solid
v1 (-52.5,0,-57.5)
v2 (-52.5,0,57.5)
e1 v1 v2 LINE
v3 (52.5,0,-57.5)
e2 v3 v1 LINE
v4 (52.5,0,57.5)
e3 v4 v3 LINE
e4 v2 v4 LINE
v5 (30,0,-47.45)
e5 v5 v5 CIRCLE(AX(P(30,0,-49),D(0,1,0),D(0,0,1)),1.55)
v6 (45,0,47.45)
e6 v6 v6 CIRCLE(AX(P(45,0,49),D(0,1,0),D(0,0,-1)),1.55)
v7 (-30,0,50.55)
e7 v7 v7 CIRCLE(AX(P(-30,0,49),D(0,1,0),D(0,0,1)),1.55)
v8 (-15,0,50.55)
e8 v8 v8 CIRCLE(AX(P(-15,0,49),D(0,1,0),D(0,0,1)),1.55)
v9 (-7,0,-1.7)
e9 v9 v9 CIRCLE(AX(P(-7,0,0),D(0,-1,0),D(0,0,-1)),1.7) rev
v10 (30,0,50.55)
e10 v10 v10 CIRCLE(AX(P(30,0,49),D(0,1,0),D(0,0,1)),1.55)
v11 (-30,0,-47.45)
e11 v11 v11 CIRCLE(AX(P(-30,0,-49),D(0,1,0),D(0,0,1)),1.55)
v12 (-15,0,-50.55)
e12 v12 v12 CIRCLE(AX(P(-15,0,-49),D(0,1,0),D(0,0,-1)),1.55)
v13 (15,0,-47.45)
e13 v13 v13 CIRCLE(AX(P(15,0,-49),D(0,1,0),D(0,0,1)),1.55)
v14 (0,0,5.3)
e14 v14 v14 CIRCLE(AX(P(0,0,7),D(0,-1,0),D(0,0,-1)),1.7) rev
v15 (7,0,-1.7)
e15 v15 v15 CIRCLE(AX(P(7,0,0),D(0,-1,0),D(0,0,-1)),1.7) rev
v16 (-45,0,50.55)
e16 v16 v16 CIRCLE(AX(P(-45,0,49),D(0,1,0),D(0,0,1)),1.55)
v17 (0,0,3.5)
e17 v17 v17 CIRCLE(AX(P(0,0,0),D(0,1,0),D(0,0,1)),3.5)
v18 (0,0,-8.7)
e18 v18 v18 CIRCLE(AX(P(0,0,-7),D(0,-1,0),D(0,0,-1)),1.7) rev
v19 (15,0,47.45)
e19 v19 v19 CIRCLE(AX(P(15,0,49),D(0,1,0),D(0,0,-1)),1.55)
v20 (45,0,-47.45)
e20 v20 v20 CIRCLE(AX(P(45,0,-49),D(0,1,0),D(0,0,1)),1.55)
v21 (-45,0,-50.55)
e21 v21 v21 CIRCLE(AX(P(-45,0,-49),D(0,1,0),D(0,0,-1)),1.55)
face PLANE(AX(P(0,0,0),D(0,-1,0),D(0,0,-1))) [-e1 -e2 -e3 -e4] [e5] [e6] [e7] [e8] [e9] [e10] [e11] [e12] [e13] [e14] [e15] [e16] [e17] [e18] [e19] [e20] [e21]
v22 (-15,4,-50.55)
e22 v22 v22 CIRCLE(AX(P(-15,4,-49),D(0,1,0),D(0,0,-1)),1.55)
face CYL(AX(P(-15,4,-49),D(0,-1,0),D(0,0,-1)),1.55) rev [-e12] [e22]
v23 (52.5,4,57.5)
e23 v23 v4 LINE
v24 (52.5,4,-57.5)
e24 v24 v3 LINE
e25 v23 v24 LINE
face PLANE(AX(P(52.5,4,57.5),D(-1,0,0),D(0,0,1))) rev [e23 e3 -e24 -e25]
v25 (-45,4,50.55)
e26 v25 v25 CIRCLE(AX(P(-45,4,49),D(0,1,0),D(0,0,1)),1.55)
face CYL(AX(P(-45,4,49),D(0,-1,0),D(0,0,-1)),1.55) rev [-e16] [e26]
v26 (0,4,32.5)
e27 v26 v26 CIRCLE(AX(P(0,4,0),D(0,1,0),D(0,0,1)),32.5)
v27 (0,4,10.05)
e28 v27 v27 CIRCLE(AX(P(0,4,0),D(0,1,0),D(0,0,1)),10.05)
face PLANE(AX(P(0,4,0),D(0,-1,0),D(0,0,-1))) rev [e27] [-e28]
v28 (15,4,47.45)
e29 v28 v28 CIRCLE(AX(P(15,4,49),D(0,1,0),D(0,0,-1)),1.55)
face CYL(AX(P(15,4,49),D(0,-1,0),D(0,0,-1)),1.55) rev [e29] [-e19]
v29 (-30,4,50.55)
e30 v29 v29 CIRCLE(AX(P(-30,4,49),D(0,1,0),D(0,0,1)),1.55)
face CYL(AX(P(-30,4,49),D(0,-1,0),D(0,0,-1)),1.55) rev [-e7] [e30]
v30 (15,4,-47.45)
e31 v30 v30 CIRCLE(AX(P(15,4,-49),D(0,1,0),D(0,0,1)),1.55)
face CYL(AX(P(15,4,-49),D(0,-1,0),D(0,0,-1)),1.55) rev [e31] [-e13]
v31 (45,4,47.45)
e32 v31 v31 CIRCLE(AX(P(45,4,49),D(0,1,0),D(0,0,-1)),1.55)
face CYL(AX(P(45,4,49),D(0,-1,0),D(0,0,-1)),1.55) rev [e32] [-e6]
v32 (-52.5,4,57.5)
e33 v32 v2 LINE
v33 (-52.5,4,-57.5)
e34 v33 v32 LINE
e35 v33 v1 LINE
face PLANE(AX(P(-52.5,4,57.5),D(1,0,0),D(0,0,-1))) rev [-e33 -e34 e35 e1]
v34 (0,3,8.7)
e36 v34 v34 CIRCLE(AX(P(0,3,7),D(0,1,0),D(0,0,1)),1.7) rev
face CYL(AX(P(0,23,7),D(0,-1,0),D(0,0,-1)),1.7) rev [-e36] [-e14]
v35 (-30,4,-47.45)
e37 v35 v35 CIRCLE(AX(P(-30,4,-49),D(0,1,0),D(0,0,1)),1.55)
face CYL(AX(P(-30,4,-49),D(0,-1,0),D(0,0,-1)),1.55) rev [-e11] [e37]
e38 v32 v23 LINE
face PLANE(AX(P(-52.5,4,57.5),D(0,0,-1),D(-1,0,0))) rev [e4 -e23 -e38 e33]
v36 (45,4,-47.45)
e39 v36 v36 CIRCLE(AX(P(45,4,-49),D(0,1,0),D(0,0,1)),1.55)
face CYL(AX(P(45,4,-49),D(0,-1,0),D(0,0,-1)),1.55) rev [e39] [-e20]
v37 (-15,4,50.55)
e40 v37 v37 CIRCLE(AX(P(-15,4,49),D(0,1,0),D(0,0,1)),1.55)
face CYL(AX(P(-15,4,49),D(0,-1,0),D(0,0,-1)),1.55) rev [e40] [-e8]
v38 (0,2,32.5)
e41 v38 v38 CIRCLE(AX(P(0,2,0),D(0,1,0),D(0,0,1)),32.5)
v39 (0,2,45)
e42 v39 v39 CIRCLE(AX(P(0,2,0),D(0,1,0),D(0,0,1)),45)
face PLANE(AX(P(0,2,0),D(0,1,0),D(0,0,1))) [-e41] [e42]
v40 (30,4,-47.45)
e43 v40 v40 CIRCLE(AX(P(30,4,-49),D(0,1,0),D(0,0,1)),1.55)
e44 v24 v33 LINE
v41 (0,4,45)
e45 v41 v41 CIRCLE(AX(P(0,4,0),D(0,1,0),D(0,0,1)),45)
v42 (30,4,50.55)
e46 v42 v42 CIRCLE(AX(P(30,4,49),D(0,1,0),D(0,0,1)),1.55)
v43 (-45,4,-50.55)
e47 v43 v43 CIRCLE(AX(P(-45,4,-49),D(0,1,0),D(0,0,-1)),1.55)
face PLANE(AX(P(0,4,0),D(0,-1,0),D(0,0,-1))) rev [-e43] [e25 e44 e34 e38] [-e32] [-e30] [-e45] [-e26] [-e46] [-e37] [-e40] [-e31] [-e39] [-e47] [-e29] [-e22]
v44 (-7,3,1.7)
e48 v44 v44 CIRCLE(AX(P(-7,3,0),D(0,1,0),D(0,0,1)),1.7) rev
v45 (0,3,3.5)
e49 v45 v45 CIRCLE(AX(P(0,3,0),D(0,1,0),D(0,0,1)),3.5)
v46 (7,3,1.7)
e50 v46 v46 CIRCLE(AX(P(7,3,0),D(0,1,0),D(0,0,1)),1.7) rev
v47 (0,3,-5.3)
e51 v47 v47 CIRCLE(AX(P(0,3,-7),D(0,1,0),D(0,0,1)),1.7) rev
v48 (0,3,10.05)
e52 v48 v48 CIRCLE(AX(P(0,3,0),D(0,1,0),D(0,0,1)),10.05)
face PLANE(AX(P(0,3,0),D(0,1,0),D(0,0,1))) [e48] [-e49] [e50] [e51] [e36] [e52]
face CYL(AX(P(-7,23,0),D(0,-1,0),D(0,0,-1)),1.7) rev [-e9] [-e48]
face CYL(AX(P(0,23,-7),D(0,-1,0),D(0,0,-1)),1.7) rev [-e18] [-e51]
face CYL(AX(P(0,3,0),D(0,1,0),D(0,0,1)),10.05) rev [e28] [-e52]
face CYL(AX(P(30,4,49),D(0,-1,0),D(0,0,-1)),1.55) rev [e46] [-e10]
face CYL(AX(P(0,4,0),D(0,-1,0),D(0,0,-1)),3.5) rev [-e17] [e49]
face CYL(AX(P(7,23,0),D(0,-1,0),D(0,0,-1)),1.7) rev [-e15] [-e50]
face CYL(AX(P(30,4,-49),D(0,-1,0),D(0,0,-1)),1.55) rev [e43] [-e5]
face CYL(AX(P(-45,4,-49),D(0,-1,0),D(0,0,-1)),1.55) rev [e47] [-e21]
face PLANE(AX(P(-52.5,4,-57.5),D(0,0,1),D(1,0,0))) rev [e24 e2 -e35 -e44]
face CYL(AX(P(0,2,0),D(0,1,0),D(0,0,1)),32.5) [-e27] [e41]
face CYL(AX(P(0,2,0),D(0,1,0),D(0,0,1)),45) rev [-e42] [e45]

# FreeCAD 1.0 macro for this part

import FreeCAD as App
import Part
import Sketcher

V = App.Vector
Q = App.Units.Quantity

doc = App.newDocument("Part")
params = doc.addObject("Spreadsheet::Sheet", "Params")
for row, (alias, value) in enumerate([
    ("sketch1_diameter", "7 mm"),
    ("sketch1_diameter2", "3.1 mm"),
    ("sketch1_width", "105 mm"),
    ("sketch1_height", "115 mm"),
    ("pad1_length", "4 mm"),
    ("sketch2_diameter", "90 mm"),
    ("sketch2_diameter2", "65 mm"),
    ("pocket1_length", "2 mm"),
    ("sketch3_diameter", "20.1 mm"),
    ("sketch3_diameter2", "3.4 mm"),
    ("pocket2_length", "1 mm"),
    ("sketch4_diameter", "3.4 mm"),
], start=1):
    params.set(f"A{row}", alias)
    params.set(f"B{row}", "=" + value)
    params.setAlias(f"B{row}", alias)

body = doc.addObject("PartDesign::Body", "Body")

# Sketch on XZ plane
sketch1 = body.newObject("Sketcher::SketchObject", "Sketch")
sketch1.AttachmentSupport = (doc.getObject("XZ_Plane"), [""])
sketch1.MapMode = "FlatFace"
sketch1.addGeometry([
    Part.LineSegment(V(-52.5, -57.5, 0), V(-52.5, 57.5, 0)),  # 0
    Part.LineSegment(V(-52.5, 57.5, 0), V(52.5, 57.5, 0)),  # 1
    Part.LineSegment(V(52.5, 57.5, 0), V(52.5, -57.5, 0)),  # 2
    Part.LineSegment(V(52.5, -57.5, 0), V(-52.5, -57.5, 0)),  # 3
    Part.Circle(V(-45, 49, 0), V(0, 0, 1), 1.55),  # 4
    Part.Circle(V(-30, 49, 0), V(0, 0, 1), 1.55),  # 5
    Part.Circle(V(-15, 49, 0), V(0, 0, 1), 1.55),  # 6
    Part.Circle(V(15, 49, 0), V(0, 0, 1), 1.55),  # 7
    Part.Circle(V(30, 49, 0), V(0, 0, 1), 1.55),  # 8
    Part.Circle(V(45, 49, 0), V(0, 0, 1), 1.55),  # 9
    Part.Circle(V(-45, -49, 0), V(0, 0, 1), 1.55),  # 10
    Part.Circle(V(-30, -49, 0), V(0, 0, 1), 1.55),  # 11
    Part.Circle(V(-15, -49, 0), V(0, 0, 1), 1.55),  # 12
    Part.Circle(V(0, 0, 0), V(0, 0, 1), 3.5),  # 13
    Part.Circle(V(15, -49, 0), V(0, 0, 1), 1.55),  # 14
    Part.Circle(V(30, -49, 0), V(0, 0, 1), 1.55),  # 15
    Part.Circle(V(45, -49, 0), V(0, 0, 1), 1.55),  # 16
], False)
sketch1.addConstraint([
    Sketcher.Constraint("Coincident", 0, 2, 1, 1),
    Sketcher.Constraint("Coincident", 1, 2, 2, 1),
    Sketcher.Constraint("Coincident", 2, 2, 3, 1),
    Sketcher.Constraint("Coincident", 3, 2, 0, 1),
    Sketcher.Constraint("Vertical", 0),
    Sketcher.Constraint("Horizontal", 1),
    Sketcher.Constraint("Vertical", 2),
    Sketcher.Constraint("Horizontal", 3),
    Sketcher.Constraint("Coincident", 13, 3, -1, 1),
    Sketcher.Constraint("Equal", 4, 5),
    Sketcher.Constraint("Equal", 5, 6),
    Sketcher.Constraint("Equal", 6, 7),
    Sketcher.Constraint("Equal", 7, 8),
    Sketcher.Constraint("Equal", 8, 9),
    Sketcher.Constraint("Equal", 9, 10),
    Sketcher.Constraint("Equal", 10, 11),
    Sketcher.Constraint("Equal", 11, 12),
    Sketcher.Constraint("Equal", 12, 14),
    Sketcher.Constraint("Equal", 14, 15),
    Sketcher.Constraint("Equal", 15, 16),
    Sketcher.Constraint("Symmetric", 9, 3, 10, 3, -1, 1),
    Sketcher.Constraint("Symmetric", 8, 3, 11, 3, -1, 1),
    Sketcher.Constraint("Symmetric", 7, 3, 12, 3, -1, 1),
    Sketcher.Constraint("Symmetric", 6, 3, 14, 3, -1, 1),
    Sketcher.Constraint("Symmetric", 5, 3, 15, 3, -1, 1),
    Sketcher.Constraint("Symmetric", 4, 3, 16, 3, -1, 1),
    Sketcher.Constraint("Symmetric", 0, 2, 2, 2, -1, 1),
    Sketcher.Constraint("Symmetric", 6, 3, 7, 3, -2),
    Sketcher.Constraint("Symmetric", 5, 3, 8, 3, -2),
    Sketcher.Constraint("Symmetric", 4, 3, 9, 3, -2),
    Sketcher.Constraint("Horizontal", 4, 3, 5, 3),
    Sketcher.Constraint("Horizontal", 5, 3, 6, 3),
    Sketcher.Constraint("Diameter", 13, Q("7 mm")),
    Sketcher.Constraint("Diameter", 4, Q("3.1 mm")),
    Sketcher.Constraint("DistanceX", 1, 1, 1, 2, Q("105 mm")),
    Sketcher.Constraint("DistanceY", 0, 1, 0, 2, Q("115 mm")),
    Sketcher.Constraint("DistanceX", 4, 3, -1, 1, Q("45 mm")),
    Sketcher.Constraint("DistanceY", -1, 1, 4, 3, Q("49 mm")),
    Sketcher.Constraint("DistanceX", 5, 3, -1, 1, Q("30 mm")),
    Sketcher.Constraint("DistanceX", 6, 3, -1, 1, Q("15 mm")),
])
sketch1.setExpression("Constraints[32]", "Params.sketch1_diameter")
sketch1.setExpression("Constraints[33]", "Params.sketch1_diameter2")
sketch1.setExpression("Constraints[34]", "Params.sketch1_width")
sketch1.setExpression("Constraints[35]", "Params.sketch1_height")
pad1 = body.newObject("PartDesign::Pad", "Pad")
pad1.Profile = sketch1
pad1.setExpression("Length", "Params.pad1_length")
pad1.Reversed = True

# Sketch on XZ plane
sketch2 = body.newObject("Sketcher::SketchObject", "Sketch001")
sketch2.AttachmentSupport = (doc.getObject("XZ_Plane"), [""])
sketch2.MapMode = "FlatFace"
sketch2.AttachmentOffset = App.Placement(V(0, 0, -4), App.Rotation())
sketch2.addGeometry([
    Part.Circle(V(0, 0, 0), V(0, 0, 1), 45),
    Part.Circle(V(0, 0, 0), V(0, 0, 1), 32.5),
], False)
sketch2.addConstraint([
    Sketcher.Constraint("Coincident", 0, 3, -1, 1),
    Sketcher.Constraint("Coincident", 1, 3, -1, 1),
    Sketcher.Constraint("Diameter", 0, Q("90 mm")),
    Sketcher.Constraint("Diameter", 1, Q("65 mm")),
])
sketch2.setExpression("Constraints[2]", "Params.sketch2_diameter")
sketch2.setExpression("Constraints[3]", "Params.sketch2_diameter2")
pocket1 = body.newObject("PartDesign::Pocket", "Pocket")
pocket1.Profile = sketch2
pocket1.setExpression("Length", "Params.pocket1_length")
pocket1.Reversed = True

# Sketch on XZ plane
sketch3 = body.newObject("Sketcher::SketchObject", "Sketch002")
sketch3.AttachmentSupport = (doc.getObject("XZ_Plane"), [""])
sketch3.MapMode = "FlatFace"
sketch3.AttachmentOffset = App.Placement(V(0, 0, -4), App.Rotation())
sketch3.addGeometry([
    Part.Circle(V(0, 0, 0), V(0, 0, 1), 10.05),  # 0
    Part.Circle(V(0, -7, 0), V(0, 0, 1), 1.7),  # 1
    Part.Circle(V(-7, 0, 0), V(0, 0, 1), 1.7),  # 2
    Part.Circle(V(7, 0, 0), V(0, 0, 1), 1.7),  # 3
    Part.Circle(V(0, 7, 0), V(0, 0, 1), 1.7),  # 4
], False)
sketch3.addConstraint([
    Sketcher.Constraint("Coincident", 0, 3, -1, 1),
    Sketcher.Constraint("Equal", 1, 2),
    Sketcher.Constraint("Equal", 2, 3),
    Sketcher.Constraint("Equal", 3, 4),
    Sketcher.Constraint("Symmetric", 2, 3, 3, 3, -1, 1),
    Sketcher.Constraint("Symmetric", 1, 3, 4, 3, -1, 1),
    Sketcher.Constraint("PointOnObject", 1, 3, -2),
    Sketcher.Constraint("PointOnObject", 2, 3, -1),
    Sketcher.Constraint("Diameter", 0, Q("20.1 mm")),
    Sketcher.Constraint("Diameter", 1, Q("3.4 mm")),
    Sketcher.Constraint("DistanceY", 1, 3, -1, 1, Q("7 mm")),
    Sketcher.Constraint("DistanceX", 2, 3, -1, 1, Q("7 mm")),
])
sketch3.setExpression("Constraints[8]", "Params.sketch3_diameter")
sketch3.setExpression("Constraints[9]", "Params.sketch3_diameter2")
pocket2 = body.newObject("PartDesign::Pocket", "Pocket001")
pocket2.Profile = sketch3
pocket2.setExpression("Length", "Params.pocket2_length")
pocket2.Reversed = True

# Sketch on XZ plane
sketch4 = body.newObject("Sketcher::SketchObject", "Sketch003")
sketch4.AttachmentSupport = (doc.getObject("XZ_Plane"), [""])
sketch4.MapMode = "FlatFace"
sketch4.AttachmentOffset = App.Placement(V(0, 0, -3), App.Rotation())
sketch4.addGeometry([
    Part.Circle(V(7, 0, 0), V(0, 0, 1), 1.7),
    Part.Circle(V(0, -7, 0), V(0, 0, 1), 1.7),
    Part.Circle(V(0, 7, 0), V(0, 0, 1), 1.7),
    Part.Circle(V(-7, 0, 0), V(0, 0, 1), 1.7),
], False)
sketch4.addConstraint([
    Sketcher.Constraint("Equal", 0, 1),
    Sketcher.Constraint("Equal", 1, 2),
    Sketcher.Constraint("Equal", 2, 3),
    Sketcher.Constraint("Symmetric", 1, 3, 2, 3, -1, 1),
    Sketcher.Constraint("Symmetric", 0, 3, 3, 3, -1, 1),
    Sketcher.Constraint("PointOnObject", 0, 3, -1),
    Sketcher.Constraint("PointOnObject", 1, 3, -2),
    Sketcher.Constraint("Diameter", 0, Q("3.4 mm")),
    Sketcher.Constraint("DistanceX", -1, 1, 0, 3, Q("7 mm")),
    Sketcher.Constraint("DistanceY", 1, 3, -1, 1, Q("7 mm")),
])
sketch4.setExpression("Constraints[7]", "Params.sketch4_diameter")
pocket3 = body.newObject("PartDesign::Pocket", "Pocket002")
pocket3.Profile = sketch4
pocket3.Type = "ThroughAll"
pocket3.Midplane = True

doc.recompute()
